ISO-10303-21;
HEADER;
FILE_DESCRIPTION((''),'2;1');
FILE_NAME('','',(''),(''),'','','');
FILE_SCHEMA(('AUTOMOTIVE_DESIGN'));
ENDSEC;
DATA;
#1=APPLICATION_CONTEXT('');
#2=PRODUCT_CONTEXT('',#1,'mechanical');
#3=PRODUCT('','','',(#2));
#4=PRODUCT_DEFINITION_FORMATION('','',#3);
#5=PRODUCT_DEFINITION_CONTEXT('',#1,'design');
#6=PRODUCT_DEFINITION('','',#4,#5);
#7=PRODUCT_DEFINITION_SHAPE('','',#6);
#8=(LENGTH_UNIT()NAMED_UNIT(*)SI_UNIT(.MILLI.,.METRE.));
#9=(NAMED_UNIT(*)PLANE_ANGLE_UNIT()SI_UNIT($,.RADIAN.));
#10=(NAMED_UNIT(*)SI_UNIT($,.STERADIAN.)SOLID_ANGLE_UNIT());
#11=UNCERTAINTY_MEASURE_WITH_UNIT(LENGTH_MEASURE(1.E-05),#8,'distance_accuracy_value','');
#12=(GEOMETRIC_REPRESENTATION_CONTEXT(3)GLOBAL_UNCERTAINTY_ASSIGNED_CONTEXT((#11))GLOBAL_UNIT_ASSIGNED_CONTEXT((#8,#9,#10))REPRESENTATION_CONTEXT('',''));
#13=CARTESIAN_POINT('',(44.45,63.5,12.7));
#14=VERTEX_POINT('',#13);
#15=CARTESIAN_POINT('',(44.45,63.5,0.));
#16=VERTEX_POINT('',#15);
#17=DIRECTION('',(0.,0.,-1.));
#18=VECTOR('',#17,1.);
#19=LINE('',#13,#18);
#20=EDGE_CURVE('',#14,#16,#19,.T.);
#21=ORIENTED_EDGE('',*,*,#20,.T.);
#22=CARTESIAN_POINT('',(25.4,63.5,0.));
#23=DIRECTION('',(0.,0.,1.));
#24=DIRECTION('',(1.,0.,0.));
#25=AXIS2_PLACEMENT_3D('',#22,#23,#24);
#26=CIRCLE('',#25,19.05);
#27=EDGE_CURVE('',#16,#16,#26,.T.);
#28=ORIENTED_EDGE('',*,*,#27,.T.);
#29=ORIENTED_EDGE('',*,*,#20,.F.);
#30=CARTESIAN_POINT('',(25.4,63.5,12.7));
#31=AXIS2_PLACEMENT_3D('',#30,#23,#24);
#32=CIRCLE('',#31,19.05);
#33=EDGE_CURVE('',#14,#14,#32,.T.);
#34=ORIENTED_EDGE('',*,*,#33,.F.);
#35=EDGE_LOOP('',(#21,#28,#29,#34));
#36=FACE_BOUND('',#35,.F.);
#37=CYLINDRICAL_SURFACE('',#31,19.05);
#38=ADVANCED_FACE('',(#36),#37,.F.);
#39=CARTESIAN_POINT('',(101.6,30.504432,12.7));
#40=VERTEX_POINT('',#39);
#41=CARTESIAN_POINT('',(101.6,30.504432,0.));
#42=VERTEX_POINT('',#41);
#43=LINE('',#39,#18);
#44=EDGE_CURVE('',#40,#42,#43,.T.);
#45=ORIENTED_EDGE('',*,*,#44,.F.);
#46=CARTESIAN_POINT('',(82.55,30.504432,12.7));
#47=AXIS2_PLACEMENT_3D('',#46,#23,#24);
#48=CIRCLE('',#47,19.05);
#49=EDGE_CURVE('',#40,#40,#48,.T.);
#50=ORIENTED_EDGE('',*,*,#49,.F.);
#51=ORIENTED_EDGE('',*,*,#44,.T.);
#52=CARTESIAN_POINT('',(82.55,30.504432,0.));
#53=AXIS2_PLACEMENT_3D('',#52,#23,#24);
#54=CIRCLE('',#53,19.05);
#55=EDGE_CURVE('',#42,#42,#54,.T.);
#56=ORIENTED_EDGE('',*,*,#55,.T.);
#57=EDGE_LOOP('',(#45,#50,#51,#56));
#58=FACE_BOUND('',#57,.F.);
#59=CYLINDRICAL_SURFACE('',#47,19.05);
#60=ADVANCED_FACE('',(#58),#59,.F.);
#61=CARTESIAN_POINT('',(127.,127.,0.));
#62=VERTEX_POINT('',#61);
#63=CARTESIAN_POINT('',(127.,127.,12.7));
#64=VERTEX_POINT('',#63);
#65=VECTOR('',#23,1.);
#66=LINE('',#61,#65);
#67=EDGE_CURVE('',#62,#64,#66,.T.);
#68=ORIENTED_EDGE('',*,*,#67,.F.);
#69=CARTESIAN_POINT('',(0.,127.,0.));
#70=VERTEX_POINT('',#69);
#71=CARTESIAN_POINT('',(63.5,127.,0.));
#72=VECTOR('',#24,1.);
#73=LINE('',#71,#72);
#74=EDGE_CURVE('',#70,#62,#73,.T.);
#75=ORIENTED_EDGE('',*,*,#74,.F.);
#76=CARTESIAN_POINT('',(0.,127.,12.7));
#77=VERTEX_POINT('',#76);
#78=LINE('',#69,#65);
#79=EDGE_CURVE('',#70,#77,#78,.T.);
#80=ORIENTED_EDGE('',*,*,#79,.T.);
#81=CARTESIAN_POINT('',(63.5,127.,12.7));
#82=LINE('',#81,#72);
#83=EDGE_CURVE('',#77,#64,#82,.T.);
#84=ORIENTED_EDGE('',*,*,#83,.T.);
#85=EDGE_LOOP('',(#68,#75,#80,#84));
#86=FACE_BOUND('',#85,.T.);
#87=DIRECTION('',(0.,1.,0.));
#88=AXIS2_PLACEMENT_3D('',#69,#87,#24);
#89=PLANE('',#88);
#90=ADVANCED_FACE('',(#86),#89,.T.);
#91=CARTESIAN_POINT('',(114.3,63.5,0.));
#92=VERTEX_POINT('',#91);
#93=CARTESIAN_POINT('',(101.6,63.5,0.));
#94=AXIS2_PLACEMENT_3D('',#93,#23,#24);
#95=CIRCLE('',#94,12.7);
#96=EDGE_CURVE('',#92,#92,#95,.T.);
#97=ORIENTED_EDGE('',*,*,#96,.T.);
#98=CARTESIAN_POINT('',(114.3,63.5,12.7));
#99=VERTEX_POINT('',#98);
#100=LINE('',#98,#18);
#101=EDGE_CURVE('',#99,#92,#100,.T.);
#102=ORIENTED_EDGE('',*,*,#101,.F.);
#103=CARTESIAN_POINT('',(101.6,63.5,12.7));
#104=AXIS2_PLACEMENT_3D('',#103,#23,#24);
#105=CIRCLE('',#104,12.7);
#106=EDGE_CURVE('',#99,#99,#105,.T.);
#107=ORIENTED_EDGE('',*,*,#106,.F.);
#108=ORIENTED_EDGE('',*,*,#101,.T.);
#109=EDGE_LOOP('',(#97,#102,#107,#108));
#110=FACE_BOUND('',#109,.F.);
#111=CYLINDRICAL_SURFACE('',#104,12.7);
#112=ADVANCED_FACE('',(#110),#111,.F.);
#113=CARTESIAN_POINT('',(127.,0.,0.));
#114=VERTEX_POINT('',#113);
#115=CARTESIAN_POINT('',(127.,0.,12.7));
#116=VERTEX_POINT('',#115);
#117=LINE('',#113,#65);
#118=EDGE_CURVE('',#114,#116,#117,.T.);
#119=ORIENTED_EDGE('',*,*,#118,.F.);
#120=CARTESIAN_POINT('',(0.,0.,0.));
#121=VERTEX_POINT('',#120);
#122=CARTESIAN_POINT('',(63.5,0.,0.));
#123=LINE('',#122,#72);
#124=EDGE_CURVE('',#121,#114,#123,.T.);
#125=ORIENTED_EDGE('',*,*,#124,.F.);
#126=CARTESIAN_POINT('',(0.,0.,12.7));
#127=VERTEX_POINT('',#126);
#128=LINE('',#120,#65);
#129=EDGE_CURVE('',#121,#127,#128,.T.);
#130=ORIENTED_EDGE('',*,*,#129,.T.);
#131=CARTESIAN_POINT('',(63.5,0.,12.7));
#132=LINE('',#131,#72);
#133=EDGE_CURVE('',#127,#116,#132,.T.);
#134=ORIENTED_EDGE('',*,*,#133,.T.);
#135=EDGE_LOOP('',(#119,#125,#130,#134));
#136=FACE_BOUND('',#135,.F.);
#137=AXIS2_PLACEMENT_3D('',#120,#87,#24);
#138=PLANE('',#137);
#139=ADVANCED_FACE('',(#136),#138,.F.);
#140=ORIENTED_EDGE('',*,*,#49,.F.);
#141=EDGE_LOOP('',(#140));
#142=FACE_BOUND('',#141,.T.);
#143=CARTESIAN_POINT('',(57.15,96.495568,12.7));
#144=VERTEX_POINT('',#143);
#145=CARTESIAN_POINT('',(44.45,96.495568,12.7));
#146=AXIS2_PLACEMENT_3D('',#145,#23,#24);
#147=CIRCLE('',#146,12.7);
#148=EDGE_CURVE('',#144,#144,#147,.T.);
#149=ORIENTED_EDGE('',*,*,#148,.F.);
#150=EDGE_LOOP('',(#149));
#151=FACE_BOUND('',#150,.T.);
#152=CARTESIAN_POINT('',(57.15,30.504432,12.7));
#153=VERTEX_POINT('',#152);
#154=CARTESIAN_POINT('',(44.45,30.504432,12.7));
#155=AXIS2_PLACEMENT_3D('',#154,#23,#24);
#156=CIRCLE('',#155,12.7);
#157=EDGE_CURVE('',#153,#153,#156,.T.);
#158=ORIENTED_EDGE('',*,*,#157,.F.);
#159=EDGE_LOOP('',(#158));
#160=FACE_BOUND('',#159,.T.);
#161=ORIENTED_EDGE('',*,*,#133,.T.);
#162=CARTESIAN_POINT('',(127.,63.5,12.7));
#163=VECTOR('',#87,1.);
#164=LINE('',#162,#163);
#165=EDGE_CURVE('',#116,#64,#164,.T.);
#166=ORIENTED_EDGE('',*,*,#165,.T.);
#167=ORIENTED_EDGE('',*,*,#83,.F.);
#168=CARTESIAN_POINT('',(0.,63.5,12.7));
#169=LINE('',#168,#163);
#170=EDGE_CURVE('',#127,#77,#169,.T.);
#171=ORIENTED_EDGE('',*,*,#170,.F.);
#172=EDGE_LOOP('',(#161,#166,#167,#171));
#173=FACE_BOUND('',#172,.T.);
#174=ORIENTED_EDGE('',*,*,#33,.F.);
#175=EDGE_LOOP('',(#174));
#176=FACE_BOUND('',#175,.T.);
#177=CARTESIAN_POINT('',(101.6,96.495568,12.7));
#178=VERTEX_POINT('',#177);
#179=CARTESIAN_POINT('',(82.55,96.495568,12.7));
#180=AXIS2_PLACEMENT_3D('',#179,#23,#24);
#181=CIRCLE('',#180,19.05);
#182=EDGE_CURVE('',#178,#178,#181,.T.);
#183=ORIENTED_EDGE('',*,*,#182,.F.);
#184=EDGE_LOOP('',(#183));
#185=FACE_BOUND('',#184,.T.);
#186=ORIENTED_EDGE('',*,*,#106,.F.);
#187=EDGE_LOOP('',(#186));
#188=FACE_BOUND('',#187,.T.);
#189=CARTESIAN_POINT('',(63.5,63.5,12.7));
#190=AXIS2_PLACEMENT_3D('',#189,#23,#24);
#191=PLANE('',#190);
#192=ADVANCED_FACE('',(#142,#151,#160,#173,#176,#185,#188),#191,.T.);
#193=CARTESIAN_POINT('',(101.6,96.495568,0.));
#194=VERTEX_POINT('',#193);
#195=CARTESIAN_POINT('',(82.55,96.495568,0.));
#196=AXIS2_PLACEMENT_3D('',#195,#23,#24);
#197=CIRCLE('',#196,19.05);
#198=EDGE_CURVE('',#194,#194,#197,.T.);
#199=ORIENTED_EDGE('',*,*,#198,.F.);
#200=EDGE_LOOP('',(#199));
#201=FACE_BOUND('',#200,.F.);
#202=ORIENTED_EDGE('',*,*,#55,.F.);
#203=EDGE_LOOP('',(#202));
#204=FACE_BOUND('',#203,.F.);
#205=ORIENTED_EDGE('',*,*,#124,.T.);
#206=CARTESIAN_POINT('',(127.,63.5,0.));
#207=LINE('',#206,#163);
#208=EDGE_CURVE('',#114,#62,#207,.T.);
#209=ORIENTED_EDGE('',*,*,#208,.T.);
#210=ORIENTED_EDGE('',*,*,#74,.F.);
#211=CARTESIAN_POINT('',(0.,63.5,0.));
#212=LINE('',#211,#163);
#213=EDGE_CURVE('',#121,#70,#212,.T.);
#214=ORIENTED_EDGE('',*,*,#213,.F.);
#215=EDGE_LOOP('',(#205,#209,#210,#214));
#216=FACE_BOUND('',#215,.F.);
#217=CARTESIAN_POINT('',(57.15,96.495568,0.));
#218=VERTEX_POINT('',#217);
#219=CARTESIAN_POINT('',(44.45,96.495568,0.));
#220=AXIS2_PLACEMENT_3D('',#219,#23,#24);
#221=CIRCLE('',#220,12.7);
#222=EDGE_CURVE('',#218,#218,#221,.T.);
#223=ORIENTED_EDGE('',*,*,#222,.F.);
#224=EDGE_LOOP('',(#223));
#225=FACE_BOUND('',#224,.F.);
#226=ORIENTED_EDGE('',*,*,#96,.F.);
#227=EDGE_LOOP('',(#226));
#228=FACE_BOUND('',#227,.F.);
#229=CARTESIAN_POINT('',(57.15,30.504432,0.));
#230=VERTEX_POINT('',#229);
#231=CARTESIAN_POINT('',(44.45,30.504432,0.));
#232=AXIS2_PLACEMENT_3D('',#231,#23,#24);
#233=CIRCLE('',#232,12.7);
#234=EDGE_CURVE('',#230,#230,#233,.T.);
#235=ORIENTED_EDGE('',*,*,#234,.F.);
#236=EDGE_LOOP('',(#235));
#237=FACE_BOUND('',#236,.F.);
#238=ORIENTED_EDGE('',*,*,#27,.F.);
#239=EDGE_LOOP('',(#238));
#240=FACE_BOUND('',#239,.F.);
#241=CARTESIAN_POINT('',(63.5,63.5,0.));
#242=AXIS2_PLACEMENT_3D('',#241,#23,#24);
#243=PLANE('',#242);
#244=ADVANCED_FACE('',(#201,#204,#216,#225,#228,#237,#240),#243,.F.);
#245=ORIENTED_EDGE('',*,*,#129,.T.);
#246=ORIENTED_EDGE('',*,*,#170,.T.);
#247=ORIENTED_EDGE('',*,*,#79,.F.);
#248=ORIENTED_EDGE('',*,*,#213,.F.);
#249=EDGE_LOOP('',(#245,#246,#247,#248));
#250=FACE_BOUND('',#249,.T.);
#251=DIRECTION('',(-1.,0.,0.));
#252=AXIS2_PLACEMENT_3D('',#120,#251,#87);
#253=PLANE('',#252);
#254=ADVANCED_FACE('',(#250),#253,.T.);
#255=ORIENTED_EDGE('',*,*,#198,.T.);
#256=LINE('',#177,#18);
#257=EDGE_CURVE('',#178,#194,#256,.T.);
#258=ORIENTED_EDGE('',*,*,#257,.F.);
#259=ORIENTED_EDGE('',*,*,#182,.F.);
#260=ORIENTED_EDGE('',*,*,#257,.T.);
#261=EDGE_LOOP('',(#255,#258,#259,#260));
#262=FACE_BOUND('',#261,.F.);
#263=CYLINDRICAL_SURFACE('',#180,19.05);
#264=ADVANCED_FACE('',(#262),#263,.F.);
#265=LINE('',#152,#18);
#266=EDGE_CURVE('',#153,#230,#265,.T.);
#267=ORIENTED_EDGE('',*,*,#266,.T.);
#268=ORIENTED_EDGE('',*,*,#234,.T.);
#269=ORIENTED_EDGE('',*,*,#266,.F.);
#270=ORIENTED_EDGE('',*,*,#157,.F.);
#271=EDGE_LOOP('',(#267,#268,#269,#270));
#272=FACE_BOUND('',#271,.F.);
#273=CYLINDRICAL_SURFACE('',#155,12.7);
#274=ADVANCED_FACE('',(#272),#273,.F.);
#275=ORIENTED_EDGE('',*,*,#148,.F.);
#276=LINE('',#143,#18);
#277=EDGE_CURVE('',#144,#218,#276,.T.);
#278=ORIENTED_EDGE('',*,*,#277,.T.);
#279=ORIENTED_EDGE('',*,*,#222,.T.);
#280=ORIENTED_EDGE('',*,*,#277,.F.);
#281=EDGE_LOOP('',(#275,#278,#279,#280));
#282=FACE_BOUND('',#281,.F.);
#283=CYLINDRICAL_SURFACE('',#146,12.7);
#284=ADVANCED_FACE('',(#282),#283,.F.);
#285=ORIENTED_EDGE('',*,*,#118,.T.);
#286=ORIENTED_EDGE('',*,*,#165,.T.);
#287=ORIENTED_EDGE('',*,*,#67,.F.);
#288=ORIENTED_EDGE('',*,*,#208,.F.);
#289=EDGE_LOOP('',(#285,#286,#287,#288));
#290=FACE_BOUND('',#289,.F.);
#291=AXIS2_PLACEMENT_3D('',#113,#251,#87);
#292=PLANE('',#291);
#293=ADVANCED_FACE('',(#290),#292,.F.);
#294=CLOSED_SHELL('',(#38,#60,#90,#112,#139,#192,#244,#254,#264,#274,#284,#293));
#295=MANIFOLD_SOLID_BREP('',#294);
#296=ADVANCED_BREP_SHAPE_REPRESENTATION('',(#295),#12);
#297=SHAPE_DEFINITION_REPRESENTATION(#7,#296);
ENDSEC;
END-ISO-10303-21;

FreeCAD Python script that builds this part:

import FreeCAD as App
import Part
import Sketcher
from FreeCAD import Vector
Q = App.Units.Quantity


def add_polygon(sketch, points):
    """Adds a closed chain of lines whose ends are joined by coincident constraints."""
    first, n = sketch.GeometryCount, len(points)
    for a, b in zip(points, points[1:] + points[:1]):
        sketch.addGeometry(Part.LineSegment(App.Vector(*a, 0), App.Vector(*b, 0)), False)
    for i in range(n):
        sketch.addConstraint(Sketcher.Constraint("Coincident", first + i, 2, first + (i + 1) % n, 1))

doc = App.newDocument("Part")
params = doc.addObject("Spreadsheet::Sheet", "Params")
for row, (alias, value) in enumerate([
    ("sketch1_width", "5 in"),
    ("pad1_length", "0.5 in"),
    ("sketch2_diameter", "1 in"),
    ("sketch2_diameter2", "1.5 in"),
    ("pocket1_length", "1 in"),
], start=1):
    params.set(f"A{row}", alias)
    params.set(f"B{row}", "=" + value)
    params.setAlias(f"B{row}", alias)

body = doc.addObject("PartDesign::Body", "Body")

sketch1 = body.newObject("Sketcher::SketchObject", "Sketch")
sketch1.AttachmentSupport = (doc.getObject("XY_Plane"), [""])
sketch1.MapMode = "FlatFace"
add_polygon(sketch1, [(0, 127), (0, 0), (127, 0), (127, 127)])
sketch1.addConstraint([
    Sketcher.Constraint("Vertical", 0),
    Sketcher.Constraint("Horizontal", 1),
    Sketcher.Constraint("Vertical", 2),
    Sketcher.Constraint("Horizontal", 3),
    Sketcher.Constraint("Coincident", 0, 2, -1, 1),
    Sketcher.Constraint("Equal", 3, 0),
    Sketcher.Constraint("DistanceX", 1, 1, 1, 2, Q("5 in")),
])
sketch1.setExpression("Constraints[10]", "Params.sketch1_width")
pad1 = body.newObject("PartDesign::Pad", "Pad")
pad1.Profile = sketch1
pad1.setExpression("Length", "Params.pad1_length")

sketch2 = body.newObject("Sketcher::SketchObject", "Sketch001")
sketch2.AttachmentSupport = (doc.getObject("XY_Plane"), [""])
sketch2.MapMode = "FlatFace"
sketch2.AttachmentOffset = App.Placement(Vector(0, 0, 0.5 * 25.4), App.Rotation())
sketch2.addGeometry([
    Part.Circle(Vector(82.55, 96.495568, 0), Vector(0, 0, 1), 19.05),
    Part.Circle(Vector(44.45, 96.495568, 0), Vector(0, 0, 1), 12.7),
    Part.Circle(Vector(25.4, 63.5, 0), Vector(0, 0, 1), 19.05),
    Part.Circle(Vector(44.45, 30.504432, 0), Vector(0, 0, 1), 12.7),
    Part.Circle(Vector(82.55, 30.504432, 0), Vector(0, 0, 1), 19.05),
    Part.Circle(Vector(101.6, 63.5, 0), Vector(0, 0, 1), 12.7),
], False)
sketch2.addConstraint([
    Sketcher.Constraint("Equal", 0, 2),
    Sketcher.Constraint("Equal", 1, 3),
    Sketcher.Constraint("Equal", 2, 4),
    Sketcher.Constraint("Equal", 3, 5),
    Sketcher.Constraint("Horizontal", 0, 3, 1, 3),
    Sketcher.Constraint("Horizontal", 3, 3, 4, 3),
    Sketcher.Constraint("Horizontal", 2, 3, 5, 3),
    Sketcher.Constraint("Vertical", 1, 3, 3, 3),
    Sketcher.Constraint("Vertical", 0, 3, 4, 3),
    Sketcher.Constraint("Diameter", 1, Q("1 in")),
    Sketcher.Constraint("Diameter", 0, Q("1.5 in")),
    Sketcher.Constraint("DistanceX", -1, 1, 2, 3, Q("1 in")),
    Sketcher.Constraint("DistanceX", -1, 1, 5, 3, Q("4 in")),
    Sketcher.Constraint("DistanceY", -1, 1, 2, 3, Q("2.5 in")),
    Sketcher.Constraint("DistanceX", 1, 3, 0, 3, Q("1.5 in")),
    Sketcher.Constraint("DistanceX", -1, 1, 0, 3, Q("3.25 in")),
    Sketcher.Constraint("DistanceY", -1, 1, 0, 3, Q("96.495568 mm")),
    Sketcher.Constraint("DistanceY", -1, 1, 3, 3, Q("30.504432 mm")),
])
sketch2.setExpression("Constraints[9]", "Params.sketch2_diameter")
sketch2.setExpression("Constraints[10]", "Params.sketch2_diameter2")
pocket1 = body.newObject("PartDesign::Pocket", "Pocket")
pocket1.Profile = sketch2
pocket1.setExpression("Length", "Params.pocket1_length")

doc.recompute()
